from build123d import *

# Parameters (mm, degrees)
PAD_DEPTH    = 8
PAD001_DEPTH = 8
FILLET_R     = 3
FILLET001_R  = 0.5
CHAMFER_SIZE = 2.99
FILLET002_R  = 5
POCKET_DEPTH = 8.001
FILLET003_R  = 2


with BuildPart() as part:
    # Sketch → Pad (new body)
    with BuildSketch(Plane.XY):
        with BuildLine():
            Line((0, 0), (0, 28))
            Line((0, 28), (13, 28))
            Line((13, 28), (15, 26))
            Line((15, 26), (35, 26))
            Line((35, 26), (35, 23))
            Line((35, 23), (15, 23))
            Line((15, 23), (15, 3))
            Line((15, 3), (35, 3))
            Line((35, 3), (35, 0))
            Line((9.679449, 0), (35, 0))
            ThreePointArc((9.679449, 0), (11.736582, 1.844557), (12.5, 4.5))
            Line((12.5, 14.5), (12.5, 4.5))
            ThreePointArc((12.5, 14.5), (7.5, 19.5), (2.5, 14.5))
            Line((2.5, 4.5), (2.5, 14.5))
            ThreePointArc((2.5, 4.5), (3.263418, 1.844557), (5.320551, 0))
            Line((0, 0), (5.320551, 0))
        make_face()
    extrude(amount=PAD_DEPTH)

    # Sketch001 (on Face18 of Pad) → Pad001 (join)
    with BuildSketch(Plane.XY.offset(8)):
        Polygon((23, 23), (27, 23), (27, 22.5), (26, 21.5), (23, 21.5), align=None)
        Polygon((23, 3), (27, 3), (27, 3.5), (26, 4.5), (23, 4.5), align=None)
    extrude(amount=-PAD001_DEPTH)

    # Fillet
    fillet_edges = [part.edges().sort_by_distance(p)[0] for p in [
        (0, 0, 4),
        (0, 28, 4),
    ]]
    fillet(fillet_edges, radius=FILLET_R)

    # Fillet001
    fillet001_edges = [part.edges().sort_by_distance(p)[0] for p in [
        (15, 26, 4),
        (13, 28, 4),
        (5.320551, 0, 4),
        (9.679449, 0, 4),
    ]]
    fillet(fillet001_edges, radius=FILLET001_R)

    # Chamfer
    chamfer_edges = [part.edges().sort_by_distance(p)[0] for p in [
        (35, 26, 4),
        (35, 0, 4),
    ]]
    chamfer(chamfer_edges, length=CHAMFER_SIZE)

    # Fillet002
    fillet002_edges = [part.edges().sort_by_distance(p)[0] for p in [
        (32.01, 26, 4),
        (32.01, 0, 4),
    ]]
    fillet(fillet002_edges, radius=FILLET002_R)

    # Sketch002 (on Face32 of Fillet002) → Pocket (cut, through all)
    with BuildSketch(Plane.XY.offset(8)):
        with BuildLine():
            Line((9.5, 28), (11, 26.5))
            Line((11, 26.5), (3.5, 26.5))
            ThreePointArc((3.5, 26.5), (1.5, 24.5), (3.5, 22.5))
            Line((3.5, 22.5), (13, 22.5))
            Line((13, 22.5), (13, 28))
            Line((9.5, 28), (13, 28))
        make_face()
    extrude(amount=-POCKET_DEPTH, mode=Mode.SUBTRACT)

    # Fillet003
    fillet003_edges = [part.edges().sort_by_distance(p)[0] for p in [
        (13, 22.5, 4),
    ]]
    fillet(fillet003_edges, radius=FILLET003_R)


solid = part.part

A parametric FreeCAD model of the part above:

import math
import FreeCAD as App
import Part
import Sketcher
from FreeCAD import Vector
Q = App.Units.Quantity


def edges_at(feature, points):
    """Names of the edges that pass closest to the given points."""
    edges = feature.Shape.Edges
    near = lambda p: min(range(len(edges)), key=lambda i: edges[i].distToShape(Part.Vertex(*p))[0])
    return sorted({f"Edge{near(p) + 1}" for p in points})

doc = App.newDocument("Part")
params = doc.addObject("Spreadsheet::Sheet", "Params")
for row, (alias, value) in enumerate([
    ("sketch1_radius", "5 mm"),
    ("sketch1_width", "20 mm"),
    ("sketch1_width2", "13 mm"),
    ("sketch1_height", "28 mm"),
    ("sketch1_height2", "10 mm"),
    ("pad1_length", "8 mm"),
    ("sketch2_width", "4 mm"),
    ("sketch2_width2", "3 mm"),
    ("sketch2_height", "1.5 mm"),
    ("pad2_length", "8 mm"),
    ("fillet_radius", "3 mm"),
    ("fillet2_radius", "0.5 mm"),
    ("chamfer_size", "2.99 mm"),
    ("fillet3_radius", "5 mm"),
    ("sketch3_radius", "2 mm"),
    ("sketch3_width", "7.5 mm"),
    ("sketch3_width2", "9.5 mm"),
    ("sketch3_width3", "3.5 mm"),
    ("fillet4_radius", "2 mm"),
], start=1):
    params.set(f"A{row}", alias)
    params.set(f"B{row}", "=" + value)
    params.setAlias(f"B{row}", alias)

body = doc.addObject("PartDesign::Body", "Body")

# Sketch on XY plane
sketch1 = doc.addObject("Sketcher::SketchObject", "Sketch")
body.addObject(sketch1)
sketch1.AttachmentSupport = (doc.XY_Plane, [""])
sketch1.MapMode = "FlatFace"
sketch1.addGeometry(Part.LineSegment(Vector(0, 28, 0), Vector(0, 0, 0)), False)
sketch1.addGeometry(Part.LineSegment(Vector(0, 0, 0), Vector(5.3, 0, 0)), False)
sketch1.addGeometry(Part.ArcOfCircle(Part.Circle(Vector(7.5, 4.5, 0), Vector(0, 0, 1), 5), math.radians(180), math.radians(244)), False)
sketch1.addGeometry(Part.LineSegment(Vector(2.5, 4.5, 0), Vector(2.5, 14.5, 0)), False)
sketch1.addGeometry(Part.ArcOfCircle(Part.Circle(Vector(7.5, 14.5, 0), Vector(0, 0, 1), 5), math.radians(0), math.radians(180)), False)
sketch1.addGeometry(Part.LineSegment(Vector(12.5, 14.5, 0), Vector(12.5, 4.5, 0)), False)
sketch1.addGeometry(Part.ArcOfCircle(Part.Circle(Vector(7.5, 4.5, 0), Vector(0, 0, 1), 5), math.radians(-64), math.radians(0)), False)
sketch1.addGeometry(Part.LineSegment(Vector(9.7, 0, 0), Vector(35, 0, 0)), False)
sketch1.addGeometry(Part.LineSegment(Vector(35, 0, 0), Vector(35, 3, 0)), False)
sketch1.addGeometry(Part.LineSegment(Vector(35, 3, 0), Vector(15, 3, 0)), False)
sketch1.addGeometry(Part.LineSegment(Vector(15, 3, 0), Vector(15, 23, 0)), False)
sketch1.addGeometry(Part.LineSegment(Vector(15, 23, 0), Vector(35, 23, 0)), False)
sketch1.addGeometry(Part.LineSegment(Vector(35, 23, 0), Vector(35, 26, 0)), False)
sketch1.addGeometry(Part.LineSegment(Vector(35, 26, 0), Vector(15, 26, 0)), False)
sketch1.addGeometry(Part.LineSegment(Vector(15, 26, 0), Vector(13, 28, 0)), False)
sketch1.addGeometry(Part.LineSegment(Vector(13, 28, 0), Vector(0, 28, 0)), False)
sketch1.addConstraint(Sketcher.Constraint("Coincident", 0, 2, 1, 1))
sketch1.addConstraint(Sketcher.Constraint("Coincident", 1, 2, 2, 2))
sketch1.addConstraint(Sketcher.Constraint("Tangent", 2, 1, 3, 1))
sketch1.addConstraint(Sketcher.Constraint("Tangent", 3, 2, 4, 2))
sketch1.addConstraint(Sketcher.Constraint("Tangent", 4, 1, 5, 1))
sketch1.addConstraint(Sketcher.Constraint("Tangent", 5, 2, 6, 2))
sketch1.addConstraint(Sketcher.Constraint("Coincident", 6, 1, 7, 1))
sketch1.addConstraint(Sketcher.Constraint("Coincident", 7, 2, 8, 1))
sketch1.addConstraint(Sketcher.Constraint("Coincident", 8, 2, 9, 1))
sketch1.addConstraint(Sketcher.Constraint("Coincident", 9, 2, 10, 1))
sketch1.addConstraint(Sketcher.Constraint("Coincident", 10, 2, 11, 1))
sketch1.addConstraint(Sketcher.Constraint("Coincident", 11, 2, 12, 1))
sketch1.addConstraint(Sketcher.Constraint("Coincident", 12, 2, 13, 1))
sketch1.addConstraint(Sketcher.Constraint("Coincident", 13, 2, 14, 1))
sketch1.addConstraint(Sketcher.Constraint("Coincident", 14, 2, 15, 1))
sketch1.addConstraint(Sketcher.Constraint("Coincident", 15, 2, 0, 1))
sketch1.addConstraint(Sketcher.Constraint("Vertical", 0))
sketch1.addConstraint(Sketcher.Constraint("Horizontal", 1))
sketch1.addConstraint(Sketcher.Constraint("Vertical", 3))
sketch1.addConstraint(Sketcher.Constraint("Vertical", 5))
sketch1.addConstraint(Sketcher.Constraint("Horizontal", 7))
sketch1.addConstraint(Sketcher.Constraint("Vertical", 8))
sketch1.addConstraint(Sketcher.Constraint("Horizontal", 9))
sketch1.addConstraint(Sketcher.Constraint("Vertical", 10))
sketch1.addConstraint(Sketcher.Constraint("Horizontal", 11))
sketch1.addConstraint(Sketcher.Constraint("Vertical", 12))
sketch1.addConstraint(Sketcher.Constraint("Horizontal", 13))
sketch1.addConstraint(Sketcher.Constraint("Horizontal", 15))
sketch1.addConstraint(Sketcher.Constraint("Coincident", 0, 2, -1, 1))
sketch1.addConstraint(Sketcher.Constraint("Coincident", 6, 3, 2, 3))
sketch1.addConstraint(Sketcher.Constraint("Equal", 2, 6))
sketch1.addConstraint(Sketcher.Constraint("PointOnObject", 6, 1, -1))
sketch1.addConstraint(Sketcher.Constraint("Vertical", 8, 2, 11, 2))
sketch1.addConstraint(Sketcher.Constraint("Vertical", 10, 2, 13, 2))
sketch1.addConstraint(Sketcher.Constraint("Equal", 13, 10))
sketch1.addConstraint(Sketcher.Constraint("Equal", 8, 12))
sketch1.addConstraint(Sketcher.Constraint("Radius", 4, Q("5 mm")))
sketch1.addConstraint(Sketcher.Constraint("DistanceX", 9, 2, 9, 1, Q("20 mm")))
sketch1.addConstraint(Sketcher.Constraint("DistanceX", 15, 2, 15, 1, Q("13 mm")))
sketch1.addConstraint(Sketcher.Constraint("DistanceY", 0, 2, 0, 1, Q("28 mm")))
sketch1.addConstraint(Sketcher.Constraint("DistanceY", 3, 1, 3, 2, Q("10 mm")))
sketch1.addConstraint(Sketcher.Constraint("DistanceY", 8, 1, 8, 2, Q("3 mm")))
sketch1.addConstraint(Sketcher.Constraint("Angle", 14, Q("135 deg")))
sketch1.addConstraint(Sketcher.Constraint("DistanceY", -1, 1, 2, 3, Q("4.499998 mm")))
sketch1.addConstraint(Sketcher.Constraint("DistanceX", -1, 1, 4, 3, Q("7.5 mm")))
sketch1.setExpression("Constraints[36]", "Params.sketch1_radius")
sketch1.setExpression("Constraints[37]", "Params.sketch1_width")
sketch1.setExpression("Constraints[38]", "Params.sketch1_width2")
sketch1.setExpression("Constraints[39]", "Params.sketch1_height")
sketch1.setExpression("Constraints[40]", "Params.sketch1_height2")
pad1 = doc.addObject("PartDesign::Pad", "Pad")
body.addObject(pad1)
pad1.Profile = sketch1
pad1.setExpression("Length", "Params.pad1_length")

# Sketch on XY plane
sketch2 = doc.addObject("Sketcher::SketchObject", "Sketch001")
body.addObject(sketch2)
sketch2.AttachmentSupport = (doc.XY_Plane, [""])
sketch2.MapMode = "FlatFace"
sketch2.AttachmentOffset = App.Placement(Vector(0, 0, 8), App.Rotation())
sketch2.addGeometry(Part.LineSegment(Vector(27, 23, 0), Vector(23, 23, 0)), False)
sketch2.addGeometry(Part.LineSegment(Vector(23, 23, 0), Vector(23, 21.5, 0)), False)
sketch2.addGeometry(Part.LineSegment(Vector(23, 21.5, 0), Vector(26, 21.5, 0)), False)
sketch2.addGeometry(Part.LineSegment(Vector(26, 21.5, 0), Vector(27, 22.5, 0)), False)
sketch2.addGeometry(Part.LineSegment(Vector(27, 22.5, 0), Vector(27, 23, 0)), False)
sketch2.addGeometry(Part.LineSegment(Vector(23, 3, 0), Vector(27, 3, 0)), False)
sketch2.addGeometry(Part.LineSegment(Vector(27, 3, 0), Vector(27, 3.5, 0)), False)
sketch2.addGeometry(Part.LineSegment(Vector(27, 3.5, 0), Vector(26, 4.5, 0)), False)
sketch2.addGeometry(Part.LineSegment(Vector(26, 4.5, 0), Vector(23, 4.5, 0)), False)
sketch2.addGeometry(Part.LineSegment(Vector(23, 4.5, 0), Vector(23, 3, 0)), False)
sketch2.addConstraint(Sketcher.Constraint("Coincident", 0, 2, 1, 1))
sketch2.addConstraint(Sketcher.Constraint("Coincident", 1, 2, 2, 1))
sketch2.addConstraint(Sketcher.Constraint("Coincident", 2, 2, 3, 1))
sketch2.addConstraint(Sketcher.Constraint("Coincident", 3, 2, 4, 1))
sketch2.addConstraint(Sketcher.Constraint("Coincident", 4, 2, 0, 1))
sketch2.addConstraint(Sketcher.Constraint("Coincident", 5, 2, 6, 1))
sketch2.addConstraint(Sketcher.Constraint("Coincident", 6, 2, 7, 1))
sketch2.addConstraint(Sketcher.Constraint("Coincident", 7, 2, 8, 1))
sketch2.addConstraint(Sketcher.Constraint("Coincident", 8, 2, 9, 1))
sketch2.addConstraint(Sketcher.Constraint("Coincident", 9, 2, 5, 1))
sketch2.addConstraint(Sketcher.Constraint("Horizontal", 0))
sketch2.addConstraint(Sketcher.Constraint("Vertical", 1))
sketch2.addConstraint(Sketcher.Constraint("Horizontal", 2))
sketch2.addConstraint(Sketcher.Constraint("Vertical", 4))
sketch2.addConstraint(Sketcher.Constraint("Horizontal", 5))
sketch2.addConstraint(Sketcher.Constraint("Vertical", 6))
sketch2.addConstraint(Sketcher.Constraint("Horizontal", 8))
sketch2.addConstraint(Sketcher.Constraint("Vertical", 9))
sketch2.addConstraint(Sketcher.Constraint("Perpendicular", 3, 7))
sketch2.addConstraint(Sketcher.Constraint("Vertical", 4, 2, 5, 2))
sketch2.addConstraint(Sketcher.Constraint("Vertical", 2, 2, 7, 2))
sketch2.addConstraint(Sketcher.Constraint("Vertical", 1, 2, 8, 2))
sketch2.addConstraint(Sketcher.Constraint("Equal", 4, 6))
sketch2.addConstraint(Sketcher.Constraint("Equal", 1, 9))
sketch2.addConstraint(Sketcher.Constraint("DistanceX", 0, 2, 0, 1, Q("4 mm")))
sketch2.addConstraint(Sketcher.Constraint("DistanceX", 2, 1, 2, 2, Q("3 mm")))
sketch2.addConstraint(Sketcher.Constraint("DistanceY", 1, 2, 1, 1, Q("1.5 mm")))
sketch2.addConstraint(Sketcher.Constraint("DistanceX", -1, 1, 0, 2, Q("23 mm")))
sketch2.addConstraint(Sketcher.Constraint("DistanceY", -1, 1, 0, 2, Q("23 mm")))
sketch2.addConstraint(Sketcher.Constraint("DistanceY", -1, 1, 5, 2, Q("3 mm")))
sketch2.setExpression("Constraints[24]", "Params.sketch2_width")
sketch2.setExpression("Constraints[25]", "Params.sketch2_width2")
sketch2.setExpression("Constraints[26]", "Params.sketch2_height")
pad2 = doc.addObject("PartDesign::Pad", "Pad001")
body.addObject(pad2)
pad2.Profile = sketch2
pad2.setExpression("Length", "Params.pad2_length")
pad2.Reversed = True
doc.recompute()

fillet = doc.addObject("PartDesign::Fillet", "Fillet")
body.addObject(fillet)
fillet.Base = (pad2, edges_at(pad2, [(0, 0, 4), (0, 28, 4)]))
fillet.setExpression("Radius", "Params.fillet_radius")
doc.recompute()

fillet2 = doc.addObject("PartDesign::Fillet", "Fillet001")
body.addObject(fillet2)
fillet2.Base = (fillet, edges_at(fillet, [
    (15, 26, 4),
    (13, 28, 4),
    (5.321, 0, 4),
    (9.679, 0, 4),
]))
fillet2.setExpression("Radius", "Params.fillet2_radius")
doc.recompute()

chamfer = doc.addObject("PartDesign::Chamfer", "Chamfer")
body.addObject(chamfer)
chamfer.Base = (fillet2, edges_at(fillet2, [(35, 26, 4), (35, 0, 4)]))
chamfer.setExpression("Size", "Params.chamfer_size")
doc.recompute()

fillet3 = doc.addObject("PartDesign::Fillet", "Fillet002")
body.addObject(fillet3)
fillet3.Base = (chamfer, edges_at(chamfer, [(32.01, 26, 4), (32.01, 0, 4)]))
fillet3.setExpression("Radius", "Params.fillet3_radius")

# Sketch on XY plane
sketch3 = doc.addObject("Sketcher::SketchObject", "Sketch002")
body.addObject(sketch3)
sketch3.AttachmentSupport = (doc.XY_Plane, [""])
sketch3.MapMode = "FlatFace"
sketch3.AttachmentOffset = App.Placement(Vector(0, 0, 8), App.Rotation())
sketch3.addGeometry(Part.LineSegment(Vector(9.5, 28, 0), Vector(11, 26.5, 0)), False)
sketch3.addGeometry(Part.LineSegment(Vector(11, 26.5, 0), Vector(3.5, 26.5, 0)), False)
sketch3.addGeometry(Part.ArcOfCircle(Part.Circle(Vector(3.5, 24.5, 0), Vector(0, 0, 1), 2), math.radians(90), math.radians(270)), False)
sketch3.addGeometry(Part.LineSegment(Vector(3.5, 22.5, 0), Vector(13, 22.5, 0)), False)
sketch3.addGeometry(Part.LineSegment(Vector(13, 22.5, 0), Vector(13, 28, 0)), False)
sketch3.addGeometry(Part.LineSegment(Vector(13, 28, 0), Vector(9.5, 28, 0)), False)
sketch3.addConstraint(Sketcher.Constraint("Coincident", 0, 2, 1, 1))
sketch3.addConstraint(Sketcher.Constraint("Tangent", 1, 2, 2, 1))
sketch3.addConstraint(Sketcher.Constraint("Tangent", 2, 2, 3, 1))
sketch3.addConstraint(Sketcher.Constraint("Coincident", 3, 2, 4, 1))
sketch3.addConstraint(Sketcher.Constraint("Coincident", 4, 2, 5, 1))
sketch3.addConstraint(Sketcher.Constraint("Coincident", 5, 2, 0, 1))
sketch3.addConstraint(Sketcher.Constraint("Horizontal", 1))
sketch3.addConstraint(Sketcher.Constraint("Horizontal", 3))
sketch3.addConstraint(Sketcher.Constraint("Vertical", 4))
sketch3.addConstraint(Sketcher.Constraint("Horizontal", 5))
sketch3.addConstraint(Sketcher.Constraint("Radius", 2, Q("2 mm")))
sketch3.addConstraint(Sketcher.Constraint("Angle", 0, Q("-45 deg")))
sketch3.addConstraint(Sketcher.Constraint("DistanceX", 1, 2, 1, 1, Q("7.5 mm")))
sketch3.addConstraint(Sketcher.Constraint("DistanceX", 3, 1, 3, 2, Q("9.5 mm")))
sketch3.addConstraint(Sketcher.Constraint("DistanceX", 5, 2, 5, 1, Q("3.5 mm")))
sketch3.addConstraint(Sketcher.Constraint("DistanceX", -1, 1, 0, 2, Q("11 mm")))
sketch3.addConstraint(Sketcher.Constraint("DistanceY", -1, 1, 4, 2, Q("28 mm")))
sketch3.setExpression("Constraints[10]", "Params.sketch3_radius")
sketch3.setExpression("Constraints[12]", "Params.sketch3_width")
sketch3.setExpression("Constraints[13]", "Params.sketch3_width2")
sketch3.setExpression("Constraints[14]", "Params.sketch3_width3")
pocket1 = doc.addObject("PartDesign::Pocket", "Pocket")
body.addObject(pocket1)
pocket1.Profile = sketch3
pocket1.Type = "ThroughAll"
doc.recompute()

fillet4 = doc.addObject("PartDesign::Fillet", "Fillet003")
body.addObject(fillet4)
fillet4.Base = (pocket1, edges_at(pocket1, [(13, 22.5, 4)]))
fillet4.setExpression("Radius", "Params.fillet4_radius")

doc.recompute()
